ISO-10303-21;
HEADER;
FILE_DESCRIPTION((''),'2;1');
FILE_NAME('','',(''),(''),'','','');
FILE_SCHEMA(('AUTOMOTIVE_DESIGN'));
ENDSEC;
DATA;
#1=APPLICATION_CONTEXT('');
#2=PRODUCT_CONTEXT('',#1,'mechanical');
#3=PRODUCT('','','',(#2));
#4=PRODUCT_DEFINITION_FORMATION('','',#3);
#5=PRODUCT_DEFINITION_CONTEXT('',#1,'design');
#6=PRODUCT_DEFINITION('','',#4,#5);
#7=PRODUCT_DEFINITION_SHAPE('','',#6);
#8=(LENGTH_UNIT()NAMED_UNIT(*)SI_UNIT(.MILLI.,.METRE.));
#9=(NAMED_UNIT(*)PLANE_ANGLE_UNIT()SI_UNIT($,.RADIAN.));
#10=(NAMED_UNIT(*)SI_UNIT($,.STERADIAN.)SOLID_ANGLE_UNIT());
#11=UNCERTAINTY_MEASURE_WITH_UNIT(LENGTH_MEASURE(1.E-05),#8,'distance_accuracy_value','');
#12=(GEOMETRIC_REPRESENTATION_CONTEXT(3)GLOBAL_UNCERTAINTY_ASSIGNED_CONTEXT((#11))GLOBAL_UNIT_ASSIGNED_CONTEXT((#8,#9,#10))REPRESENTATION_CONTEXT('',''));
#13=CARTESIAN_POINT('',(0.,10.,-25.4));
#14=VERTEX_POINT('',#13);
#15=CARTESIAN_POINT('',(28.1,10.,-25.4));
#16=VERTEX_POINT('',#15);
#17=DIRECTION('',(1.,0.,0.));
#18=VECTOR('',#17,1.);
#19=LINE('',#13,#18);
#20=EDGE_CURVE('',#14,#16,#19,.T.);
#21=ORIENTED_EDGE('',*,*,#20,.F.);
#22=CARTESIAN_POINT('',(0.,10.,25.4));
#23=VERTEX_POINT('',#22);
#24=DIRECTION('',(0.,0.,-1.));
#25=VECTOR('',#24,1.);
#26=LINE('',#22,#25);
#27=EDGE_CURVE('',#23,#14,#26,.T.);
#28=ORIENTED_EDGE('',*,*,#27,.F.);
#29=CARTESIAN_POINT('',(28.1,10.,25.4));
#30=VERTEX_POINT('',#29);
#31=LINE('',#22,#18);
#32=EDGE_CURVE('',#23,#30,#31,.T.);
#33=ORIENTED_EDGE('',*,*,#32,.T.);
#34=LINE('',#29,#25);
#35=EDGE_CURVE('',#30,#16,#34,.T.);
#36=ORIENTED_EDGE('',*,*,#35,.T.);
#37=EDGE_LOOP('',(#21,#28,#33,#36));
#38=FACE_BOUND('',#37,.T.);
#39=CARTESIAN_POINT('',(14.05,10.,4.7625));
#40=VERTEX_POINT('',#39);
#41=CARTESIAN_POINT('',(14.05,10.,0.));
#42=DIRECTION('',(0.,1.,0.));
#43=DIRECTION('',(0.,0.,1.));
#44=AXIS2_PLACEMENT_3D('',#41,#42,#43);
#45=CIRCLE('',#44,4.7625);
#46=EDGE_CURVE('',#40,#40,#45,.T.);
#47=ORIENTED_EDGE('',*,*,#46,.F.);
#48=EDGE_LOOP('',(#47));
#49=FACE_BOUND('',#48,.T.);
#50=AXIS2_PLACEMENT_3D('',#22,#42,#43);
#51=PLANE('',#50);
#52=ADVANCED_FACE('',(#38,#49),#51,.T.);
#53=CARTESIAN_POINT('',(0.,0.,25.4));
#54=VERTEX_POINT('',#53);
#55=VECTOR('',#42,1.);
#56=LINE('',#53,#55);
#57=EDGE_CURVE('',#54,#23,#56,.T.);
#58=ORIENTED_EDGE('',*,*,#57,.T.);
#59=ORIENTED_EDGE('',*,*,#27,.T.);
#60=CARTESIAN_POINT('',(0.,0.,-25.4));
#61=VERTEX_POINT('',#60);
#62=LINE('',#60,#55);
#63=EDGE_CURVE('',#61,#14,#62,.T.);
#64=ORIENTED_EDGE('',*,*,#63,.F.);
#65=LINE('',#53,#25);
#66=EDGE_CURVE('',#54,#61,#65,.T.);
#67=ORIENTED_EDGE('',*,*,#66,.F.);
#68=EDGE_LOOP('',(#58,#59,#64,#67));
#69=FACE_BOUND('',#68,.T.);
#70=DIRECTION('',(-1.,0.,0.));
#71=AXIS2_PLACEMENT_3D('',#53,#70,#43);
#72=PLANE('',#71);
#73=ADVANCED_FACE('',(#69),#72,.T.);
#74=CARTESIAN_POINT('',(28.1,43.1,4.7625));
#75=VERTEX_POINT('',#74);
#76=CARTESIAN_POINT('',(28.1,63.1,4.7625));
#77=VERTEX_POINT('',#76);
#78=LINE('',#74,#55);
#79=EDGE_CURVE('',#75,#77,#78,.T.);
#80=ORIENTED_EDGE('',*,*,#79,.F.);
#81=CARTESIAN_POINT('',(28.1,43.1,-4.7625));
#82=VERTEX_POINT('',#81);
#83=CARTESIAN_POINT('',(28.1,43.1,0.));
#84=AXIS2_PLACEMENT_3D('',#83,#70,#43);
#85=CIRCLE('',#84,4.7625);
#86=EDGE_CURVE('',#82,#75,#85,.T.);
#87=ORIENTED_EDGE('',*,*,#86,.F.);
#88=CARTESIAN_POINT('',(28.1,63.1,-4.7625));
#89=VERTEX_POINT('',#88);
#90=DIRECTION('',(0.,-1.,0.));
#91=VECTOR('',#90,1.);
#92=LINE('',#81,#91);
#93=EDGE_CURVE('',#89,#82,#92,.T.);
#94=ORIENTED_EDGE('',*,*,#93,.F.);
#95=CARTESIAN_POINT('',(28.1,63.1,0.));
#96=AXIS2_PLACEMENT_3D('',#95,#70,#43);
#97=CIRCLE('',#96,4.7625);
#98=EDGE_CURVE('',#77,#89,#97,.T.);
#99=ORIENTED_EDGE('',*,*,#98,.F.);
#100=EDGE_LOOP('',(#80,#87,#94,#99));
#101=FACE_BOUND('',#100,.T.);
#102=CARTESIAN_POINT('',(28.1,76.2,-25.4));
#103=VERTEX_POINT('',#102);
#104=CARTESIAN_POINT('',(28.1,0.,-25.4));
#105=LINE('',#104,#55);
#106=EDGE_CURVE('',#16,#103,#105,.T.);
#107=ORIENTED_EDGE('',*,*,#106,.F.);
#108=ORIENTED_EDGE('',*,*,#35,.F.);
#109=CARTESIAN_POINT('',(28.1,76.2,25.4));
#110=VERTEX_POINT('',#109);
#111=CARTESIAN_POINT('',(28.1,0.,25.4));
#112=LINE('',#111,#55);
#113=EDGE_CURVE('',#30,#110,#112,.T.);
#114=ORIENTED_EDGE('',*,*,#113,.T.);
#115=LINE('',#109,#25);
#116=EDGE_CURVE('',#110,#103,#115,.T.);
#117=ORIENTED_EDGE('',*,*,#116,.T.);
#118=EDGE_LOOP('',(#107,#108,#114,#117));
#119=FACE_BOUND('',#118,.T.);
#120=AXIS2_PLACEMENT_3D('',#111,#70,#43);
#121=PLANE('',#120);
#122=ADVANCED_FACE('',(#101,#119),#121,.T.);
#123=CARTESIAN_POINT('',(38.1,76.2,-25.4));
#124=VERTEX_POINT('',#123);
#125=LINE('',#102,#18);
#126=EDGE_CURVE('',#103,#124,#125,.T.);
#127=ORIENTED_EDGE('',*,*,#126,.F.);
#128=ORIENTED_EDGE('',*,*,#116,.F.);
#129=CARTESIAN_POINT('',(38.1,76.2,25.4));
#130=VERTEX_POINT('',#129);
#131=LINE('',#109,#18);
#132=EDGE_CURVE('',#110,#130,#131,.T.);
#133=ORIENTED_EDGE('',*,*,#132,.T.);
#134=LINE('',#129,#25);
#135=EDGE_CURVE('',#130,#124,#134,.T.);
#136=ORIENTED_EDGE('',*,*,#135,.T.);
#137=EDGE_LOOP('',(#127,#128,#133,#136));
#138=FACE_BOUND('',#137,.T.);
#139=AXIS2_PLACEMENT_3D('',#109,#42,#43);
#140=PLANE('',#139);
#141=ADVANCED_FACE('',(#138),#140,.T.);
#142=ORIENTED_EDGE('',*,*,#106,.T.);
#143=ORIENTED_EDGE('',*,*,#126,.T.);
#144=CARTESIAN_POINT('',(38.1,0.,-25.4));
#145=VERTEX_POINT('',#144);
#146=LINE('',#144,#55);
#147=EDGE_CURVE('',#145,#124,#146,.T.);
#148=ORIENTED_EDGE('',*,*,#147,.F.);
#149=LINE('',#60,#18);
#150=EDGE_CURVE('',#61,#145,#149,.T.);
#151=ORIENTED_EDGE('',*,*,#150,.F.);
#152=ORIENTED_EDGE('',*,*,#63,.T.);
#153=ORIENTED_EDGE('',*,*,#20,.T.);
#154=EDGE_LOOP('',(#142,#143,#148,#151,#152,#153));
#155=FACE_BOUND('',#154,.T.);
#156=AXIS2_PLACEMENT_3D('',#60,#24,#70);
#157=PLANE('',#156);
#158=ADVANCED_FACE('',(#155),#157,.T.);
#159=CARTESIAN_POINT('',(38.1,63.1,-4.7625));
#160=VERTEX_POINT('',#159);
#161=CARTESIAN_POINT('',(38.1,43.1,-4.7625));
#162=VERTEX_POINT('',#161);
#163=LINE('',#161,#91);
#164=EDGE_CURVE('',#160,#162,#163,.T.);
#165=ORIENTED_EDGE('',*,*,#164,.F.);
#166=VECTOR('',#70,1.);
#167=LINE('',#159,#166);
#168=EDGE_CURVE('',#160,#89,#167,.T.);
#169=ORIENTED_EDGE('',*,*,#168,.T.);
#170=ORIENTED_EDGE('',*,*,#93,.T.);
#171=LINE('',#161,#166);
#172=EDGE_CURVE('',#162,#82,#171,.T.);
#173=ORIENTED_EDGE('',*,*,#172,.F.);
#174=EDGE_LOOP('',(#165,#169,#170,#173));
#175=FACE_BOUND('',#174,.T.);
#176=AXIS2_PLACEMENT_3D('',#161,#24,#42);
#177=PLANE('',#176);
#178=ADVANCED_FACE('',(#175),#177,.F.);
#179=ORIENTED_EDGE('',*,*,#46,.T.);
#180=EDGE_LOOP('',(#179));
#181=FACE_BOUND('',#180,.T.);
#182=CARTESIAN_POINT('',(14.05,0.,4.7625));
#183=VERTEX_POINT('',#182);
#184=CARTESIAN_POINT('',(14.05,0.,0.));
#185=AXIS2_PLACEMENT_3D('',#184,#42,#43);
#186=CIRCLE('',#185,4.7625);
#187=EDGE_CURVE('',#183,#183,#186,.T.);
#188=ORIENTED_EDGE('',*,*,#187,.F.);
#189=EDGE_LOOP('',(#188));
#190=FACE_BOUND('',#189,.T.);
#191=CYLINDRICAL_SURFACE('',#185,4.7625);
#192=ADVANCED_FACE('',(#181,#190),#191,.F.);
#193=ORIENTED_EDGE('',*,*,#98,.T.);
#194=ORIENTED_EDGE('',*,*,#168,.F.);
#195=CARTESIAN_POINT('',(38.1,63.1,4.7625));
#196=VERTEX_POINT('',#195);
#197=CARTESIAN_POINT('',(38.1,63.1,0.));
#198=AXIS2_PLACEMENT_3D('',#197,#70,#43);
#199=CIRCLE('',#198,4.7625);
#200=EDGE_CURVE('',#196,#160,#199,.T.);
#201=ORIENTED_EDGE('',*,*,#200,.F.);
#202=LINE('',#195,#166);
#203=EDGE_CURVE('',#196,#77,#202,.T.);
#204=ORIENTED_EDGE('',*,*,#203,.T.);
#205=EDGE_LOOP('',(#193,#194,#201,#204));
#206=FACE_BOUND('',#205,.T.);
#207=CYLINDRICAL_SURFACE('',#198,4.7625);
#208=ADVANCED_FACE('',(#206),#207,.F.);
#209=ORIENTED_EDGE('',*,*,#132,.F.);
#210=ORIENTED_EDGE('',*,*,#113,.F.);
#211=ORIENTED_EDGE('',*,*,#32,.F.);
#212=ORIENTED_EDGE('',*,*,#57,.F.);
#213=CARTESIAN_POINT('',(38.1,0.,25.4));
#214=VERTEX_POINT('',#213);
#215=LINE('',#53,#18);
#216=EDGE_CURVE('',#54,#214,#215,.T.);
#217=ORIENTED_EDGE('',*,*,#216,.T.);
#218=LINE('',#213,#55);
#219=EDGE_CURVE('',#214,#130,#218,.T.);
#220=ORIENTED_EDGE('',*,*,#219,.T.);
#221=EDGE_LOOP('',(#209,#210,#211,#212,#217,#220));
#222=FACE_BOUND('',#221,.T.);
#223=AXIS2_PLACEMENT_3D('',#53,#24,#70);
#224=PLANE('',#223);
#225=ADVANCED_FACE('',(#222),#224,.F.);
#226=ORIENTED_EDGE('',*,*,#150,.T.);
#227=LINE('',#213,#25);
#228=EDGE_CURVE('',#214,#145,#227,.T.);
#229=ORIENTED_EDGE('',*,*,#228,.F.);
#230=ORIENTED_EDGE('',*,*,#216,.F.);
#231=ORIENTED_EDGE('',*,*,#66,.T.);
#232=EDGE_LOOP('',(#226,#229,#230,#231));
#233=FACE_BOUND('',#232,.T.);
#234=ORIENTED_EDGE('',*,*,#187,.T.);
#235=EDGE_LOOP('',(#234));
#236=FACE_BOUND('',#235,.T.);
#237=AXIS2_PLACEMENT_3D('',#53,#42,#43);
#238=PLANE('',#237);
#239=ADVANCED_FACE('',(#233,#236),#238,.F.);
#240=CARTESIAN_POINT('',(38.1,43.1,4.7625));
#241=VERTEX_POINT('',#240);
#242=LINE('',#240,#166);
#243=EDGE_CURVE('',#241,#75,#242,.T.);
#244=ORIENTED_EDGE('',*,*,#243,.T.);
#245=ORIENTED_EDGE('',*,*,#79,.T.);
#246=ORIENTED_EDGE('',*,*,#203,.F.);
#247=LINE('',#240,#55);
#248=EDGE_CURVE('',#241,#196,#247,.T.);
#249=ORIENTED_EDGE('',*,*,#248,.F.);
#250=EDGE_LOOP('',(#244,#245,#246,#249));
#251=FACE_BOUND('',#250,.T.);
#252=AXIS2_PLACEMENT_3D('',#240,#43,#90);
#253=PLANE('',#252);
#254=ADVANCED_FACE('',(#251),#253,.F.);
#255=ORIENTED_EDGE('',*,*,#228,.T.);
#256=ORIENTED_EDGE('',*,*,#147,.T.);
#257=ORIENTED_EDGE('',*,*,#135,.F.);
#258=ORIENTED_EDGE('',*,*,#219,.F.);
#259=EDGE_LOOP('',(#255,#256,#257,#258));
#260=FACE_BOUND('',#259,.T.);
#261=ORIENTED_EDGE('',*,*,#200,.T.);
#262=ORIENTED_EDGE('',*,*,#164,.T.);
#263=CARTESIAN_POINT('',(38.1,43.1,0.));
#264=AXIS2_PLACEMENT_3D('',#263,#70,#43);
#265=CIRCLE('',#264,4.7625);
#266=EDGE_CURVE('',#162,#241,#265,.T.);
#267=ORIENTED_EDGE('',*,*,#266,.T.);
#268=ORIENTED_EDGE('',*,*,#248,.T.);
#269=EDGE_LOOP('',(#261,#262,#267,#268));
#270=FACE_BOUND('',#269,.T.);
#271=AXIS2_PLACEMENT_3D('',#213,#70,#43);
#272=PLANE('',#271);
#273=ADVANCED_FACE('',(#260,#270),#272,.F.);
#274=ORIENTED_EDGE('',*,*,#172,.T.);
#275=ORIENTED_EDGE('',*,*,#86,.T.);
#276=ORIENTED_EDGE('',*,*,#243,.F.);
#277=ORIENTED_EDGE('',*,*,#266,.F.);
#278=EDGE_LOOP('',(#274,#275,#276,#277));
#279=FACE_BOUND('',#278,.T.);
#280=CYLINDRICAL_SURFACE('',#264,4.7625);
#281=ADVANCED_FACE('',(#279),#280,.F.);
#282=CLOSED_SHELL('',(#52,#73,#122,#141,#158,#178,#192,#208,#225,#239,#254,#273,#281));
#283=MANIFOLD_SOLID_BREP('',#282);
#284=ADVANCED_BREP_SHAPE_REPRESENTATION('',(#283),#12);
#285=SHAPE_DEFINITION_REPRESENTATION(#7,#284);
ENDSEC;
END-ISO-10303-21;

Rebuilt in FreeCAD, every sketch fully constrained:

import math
import FreeCAD as App
import Part
import Sketcher
Q = App.Units.Quantity


def add_polygon(sketch, points):
    """Adds a closed chain of lines whose ends are joined by coincident constraints."""
    first, n = sketch.GeometryCount, len(points)
    for a, b in zip(points, points[1:] + points[:1]):
        sketch.addGeometry(Part.LineSegment(App.Vector(*a, 0), App.Vector(*b, 0)), False)
    for i in range(n):
        sketch.addConstraint(Sketcher.Constraint("Coincident", first + i, 2, first + (i + 1) % n, 1))

doc = App.newDocument("Part")
body = doc.addObject("PartDesign::Body", "Body")

sketch1 = body.newObject("Sketcher::SketchObject", "Sketch")
sketch1.AttachmentSupport = (doc.getObject("XY_Plane"), [""])
sketch1.MapMode = "FlatFace"
add_polygon(sketch1, [(0, 0), (38.1, 0), (38.1, 76.2), (28.1, 76.2), (28.1, 10), (0, 10)])
sketch1.addConstraint([
    Sketcher.Constraint("Horizontal", 0),
    Sketcher.Constraint("Vertical", 1),
    Sketcher.Constraint("Horizontal", 2),
    Sketcher.Constraint("Vertical", 3),
    Sketcher.Constraint("Horizontal", 4),
    Sketcher.Constraint("Vertical", 5),
    Sketcher.Constraint("Coincident", 5, 2, -1, 1),
    Sketcher.Constraint("Equal", 2, 5),
    Sketcher.Constraint("DistanceX", 2, 2, 2, 1, Q("10 mm")),
    Sketcher.Constraint("DistanceX", 0, 1, 0, 2, Q("38.1 mm")),
    Sketcher.Constraint("DistanceY", 1, 1, 1, 2, Q("76.2 mm")),
])
pad1 = body.newObject("PartDesign::Pad", "Pad")
pad1.Profile = sketch1
pad1.Length = 50.8
pad1.Midplane = True

sketch2 = body.newObject("Sketcher::SketchObject", "Sketch001")
sketch2.AttachmentSupport = (doc.getObject("XZ_Plane"), [""])
sketch2.MapMode = "FlatFace"
sketch2.AttachmentOffset = App.Placement(App.Vector(0, 0, -10), App.Rotation())
sketch2.addGeometry(Part.Circle(App.Vector(14.05, 0, 0), App.Vector(0, 0, 1), 4.7625), False)
sketch2.addConstraint([
    Sketcher.Constraint("PointOnObject", 0, 3, -1),
    Sketcher.Constraint("Diameter", 0, Q("9.525 mm")),
    Sketcher.Constraint("DistanceX", -1, 1, 0, 3, Q("14.05 mm")),
])
pocket1 = body.newObject("PartDesign::Pocket", "Pocket")
pocket1.Profile = sketch2
pocket1.Type = "ThroughAll"
pocket1.Reversed = True

sketch3 = body.newObject("Sketcher::SketchObject", "Sketch002")
sketch3.AttachmentSupport = (doc.getObject("YZ_Plane"), [""])
sketch3.MapMode = "FlatFace"
sketch3.AttachmentOffset = App.Placement(App.Vector(0, 0, 28.1), App.Rotation())
sketch3.addGeometry([
    Part.LineSegment(App.Vector(63.1, -4.7625, 0), App.Vector(43.1, -4.7625, 0)),
    Part.ArcOfCircle(Part.Circle(App.Vector(43.1, 0, 0), App.Vector(0, 0, 1), 4.7625), math.radians(90), math.radians(270)),
    Part.LineSegment(App.Vector(43.1, 4.7625, 0), App.Vector(63.1, 4.7625, 0)),
    Part.ArcOfCircle(Part.Circle(App.Vector(63.1, 0, 0), App.Vector(0, 0, 1), 4.7625), math.radians(-90), math.radians(90)),
], False)
sketch3.addConstraint([
    Sketcher.Constraint("Tangent", 0, 2, 1, 2),
    Sketcher.Constraint("Tangent", 1, 1, 2, 1),
    Sketcher.Constraint("Tangent", 2, 2, 3, 2),
    Sketcher.Constraint("Tangent", 3, 1, 0, 1),
    Sketcher.Constraint("Horizontal", 0),
    Sketcher.Constraint("Horizontal", 2),
    Sketcher.Constraint("PointOnObject", 1, 3, -1),
    Sketcher.Constraint("DistanceX", 0, 2, 0, 1, Q("20 mm")),
    Sketcher.Constraint("DistanceX", -1, 1, 1, 3, Q("43.1 mm")),
    Sketcher.Constraint("Radius", 1, Q("4.7625 mm")),
])
pocket2 = body.newObject("PartDesign::Pocket", "Pocket001")
pocket2.Profile = sketch3
pocket2.Length = 10
pocket2.Reversed = True

doc.recompute()
